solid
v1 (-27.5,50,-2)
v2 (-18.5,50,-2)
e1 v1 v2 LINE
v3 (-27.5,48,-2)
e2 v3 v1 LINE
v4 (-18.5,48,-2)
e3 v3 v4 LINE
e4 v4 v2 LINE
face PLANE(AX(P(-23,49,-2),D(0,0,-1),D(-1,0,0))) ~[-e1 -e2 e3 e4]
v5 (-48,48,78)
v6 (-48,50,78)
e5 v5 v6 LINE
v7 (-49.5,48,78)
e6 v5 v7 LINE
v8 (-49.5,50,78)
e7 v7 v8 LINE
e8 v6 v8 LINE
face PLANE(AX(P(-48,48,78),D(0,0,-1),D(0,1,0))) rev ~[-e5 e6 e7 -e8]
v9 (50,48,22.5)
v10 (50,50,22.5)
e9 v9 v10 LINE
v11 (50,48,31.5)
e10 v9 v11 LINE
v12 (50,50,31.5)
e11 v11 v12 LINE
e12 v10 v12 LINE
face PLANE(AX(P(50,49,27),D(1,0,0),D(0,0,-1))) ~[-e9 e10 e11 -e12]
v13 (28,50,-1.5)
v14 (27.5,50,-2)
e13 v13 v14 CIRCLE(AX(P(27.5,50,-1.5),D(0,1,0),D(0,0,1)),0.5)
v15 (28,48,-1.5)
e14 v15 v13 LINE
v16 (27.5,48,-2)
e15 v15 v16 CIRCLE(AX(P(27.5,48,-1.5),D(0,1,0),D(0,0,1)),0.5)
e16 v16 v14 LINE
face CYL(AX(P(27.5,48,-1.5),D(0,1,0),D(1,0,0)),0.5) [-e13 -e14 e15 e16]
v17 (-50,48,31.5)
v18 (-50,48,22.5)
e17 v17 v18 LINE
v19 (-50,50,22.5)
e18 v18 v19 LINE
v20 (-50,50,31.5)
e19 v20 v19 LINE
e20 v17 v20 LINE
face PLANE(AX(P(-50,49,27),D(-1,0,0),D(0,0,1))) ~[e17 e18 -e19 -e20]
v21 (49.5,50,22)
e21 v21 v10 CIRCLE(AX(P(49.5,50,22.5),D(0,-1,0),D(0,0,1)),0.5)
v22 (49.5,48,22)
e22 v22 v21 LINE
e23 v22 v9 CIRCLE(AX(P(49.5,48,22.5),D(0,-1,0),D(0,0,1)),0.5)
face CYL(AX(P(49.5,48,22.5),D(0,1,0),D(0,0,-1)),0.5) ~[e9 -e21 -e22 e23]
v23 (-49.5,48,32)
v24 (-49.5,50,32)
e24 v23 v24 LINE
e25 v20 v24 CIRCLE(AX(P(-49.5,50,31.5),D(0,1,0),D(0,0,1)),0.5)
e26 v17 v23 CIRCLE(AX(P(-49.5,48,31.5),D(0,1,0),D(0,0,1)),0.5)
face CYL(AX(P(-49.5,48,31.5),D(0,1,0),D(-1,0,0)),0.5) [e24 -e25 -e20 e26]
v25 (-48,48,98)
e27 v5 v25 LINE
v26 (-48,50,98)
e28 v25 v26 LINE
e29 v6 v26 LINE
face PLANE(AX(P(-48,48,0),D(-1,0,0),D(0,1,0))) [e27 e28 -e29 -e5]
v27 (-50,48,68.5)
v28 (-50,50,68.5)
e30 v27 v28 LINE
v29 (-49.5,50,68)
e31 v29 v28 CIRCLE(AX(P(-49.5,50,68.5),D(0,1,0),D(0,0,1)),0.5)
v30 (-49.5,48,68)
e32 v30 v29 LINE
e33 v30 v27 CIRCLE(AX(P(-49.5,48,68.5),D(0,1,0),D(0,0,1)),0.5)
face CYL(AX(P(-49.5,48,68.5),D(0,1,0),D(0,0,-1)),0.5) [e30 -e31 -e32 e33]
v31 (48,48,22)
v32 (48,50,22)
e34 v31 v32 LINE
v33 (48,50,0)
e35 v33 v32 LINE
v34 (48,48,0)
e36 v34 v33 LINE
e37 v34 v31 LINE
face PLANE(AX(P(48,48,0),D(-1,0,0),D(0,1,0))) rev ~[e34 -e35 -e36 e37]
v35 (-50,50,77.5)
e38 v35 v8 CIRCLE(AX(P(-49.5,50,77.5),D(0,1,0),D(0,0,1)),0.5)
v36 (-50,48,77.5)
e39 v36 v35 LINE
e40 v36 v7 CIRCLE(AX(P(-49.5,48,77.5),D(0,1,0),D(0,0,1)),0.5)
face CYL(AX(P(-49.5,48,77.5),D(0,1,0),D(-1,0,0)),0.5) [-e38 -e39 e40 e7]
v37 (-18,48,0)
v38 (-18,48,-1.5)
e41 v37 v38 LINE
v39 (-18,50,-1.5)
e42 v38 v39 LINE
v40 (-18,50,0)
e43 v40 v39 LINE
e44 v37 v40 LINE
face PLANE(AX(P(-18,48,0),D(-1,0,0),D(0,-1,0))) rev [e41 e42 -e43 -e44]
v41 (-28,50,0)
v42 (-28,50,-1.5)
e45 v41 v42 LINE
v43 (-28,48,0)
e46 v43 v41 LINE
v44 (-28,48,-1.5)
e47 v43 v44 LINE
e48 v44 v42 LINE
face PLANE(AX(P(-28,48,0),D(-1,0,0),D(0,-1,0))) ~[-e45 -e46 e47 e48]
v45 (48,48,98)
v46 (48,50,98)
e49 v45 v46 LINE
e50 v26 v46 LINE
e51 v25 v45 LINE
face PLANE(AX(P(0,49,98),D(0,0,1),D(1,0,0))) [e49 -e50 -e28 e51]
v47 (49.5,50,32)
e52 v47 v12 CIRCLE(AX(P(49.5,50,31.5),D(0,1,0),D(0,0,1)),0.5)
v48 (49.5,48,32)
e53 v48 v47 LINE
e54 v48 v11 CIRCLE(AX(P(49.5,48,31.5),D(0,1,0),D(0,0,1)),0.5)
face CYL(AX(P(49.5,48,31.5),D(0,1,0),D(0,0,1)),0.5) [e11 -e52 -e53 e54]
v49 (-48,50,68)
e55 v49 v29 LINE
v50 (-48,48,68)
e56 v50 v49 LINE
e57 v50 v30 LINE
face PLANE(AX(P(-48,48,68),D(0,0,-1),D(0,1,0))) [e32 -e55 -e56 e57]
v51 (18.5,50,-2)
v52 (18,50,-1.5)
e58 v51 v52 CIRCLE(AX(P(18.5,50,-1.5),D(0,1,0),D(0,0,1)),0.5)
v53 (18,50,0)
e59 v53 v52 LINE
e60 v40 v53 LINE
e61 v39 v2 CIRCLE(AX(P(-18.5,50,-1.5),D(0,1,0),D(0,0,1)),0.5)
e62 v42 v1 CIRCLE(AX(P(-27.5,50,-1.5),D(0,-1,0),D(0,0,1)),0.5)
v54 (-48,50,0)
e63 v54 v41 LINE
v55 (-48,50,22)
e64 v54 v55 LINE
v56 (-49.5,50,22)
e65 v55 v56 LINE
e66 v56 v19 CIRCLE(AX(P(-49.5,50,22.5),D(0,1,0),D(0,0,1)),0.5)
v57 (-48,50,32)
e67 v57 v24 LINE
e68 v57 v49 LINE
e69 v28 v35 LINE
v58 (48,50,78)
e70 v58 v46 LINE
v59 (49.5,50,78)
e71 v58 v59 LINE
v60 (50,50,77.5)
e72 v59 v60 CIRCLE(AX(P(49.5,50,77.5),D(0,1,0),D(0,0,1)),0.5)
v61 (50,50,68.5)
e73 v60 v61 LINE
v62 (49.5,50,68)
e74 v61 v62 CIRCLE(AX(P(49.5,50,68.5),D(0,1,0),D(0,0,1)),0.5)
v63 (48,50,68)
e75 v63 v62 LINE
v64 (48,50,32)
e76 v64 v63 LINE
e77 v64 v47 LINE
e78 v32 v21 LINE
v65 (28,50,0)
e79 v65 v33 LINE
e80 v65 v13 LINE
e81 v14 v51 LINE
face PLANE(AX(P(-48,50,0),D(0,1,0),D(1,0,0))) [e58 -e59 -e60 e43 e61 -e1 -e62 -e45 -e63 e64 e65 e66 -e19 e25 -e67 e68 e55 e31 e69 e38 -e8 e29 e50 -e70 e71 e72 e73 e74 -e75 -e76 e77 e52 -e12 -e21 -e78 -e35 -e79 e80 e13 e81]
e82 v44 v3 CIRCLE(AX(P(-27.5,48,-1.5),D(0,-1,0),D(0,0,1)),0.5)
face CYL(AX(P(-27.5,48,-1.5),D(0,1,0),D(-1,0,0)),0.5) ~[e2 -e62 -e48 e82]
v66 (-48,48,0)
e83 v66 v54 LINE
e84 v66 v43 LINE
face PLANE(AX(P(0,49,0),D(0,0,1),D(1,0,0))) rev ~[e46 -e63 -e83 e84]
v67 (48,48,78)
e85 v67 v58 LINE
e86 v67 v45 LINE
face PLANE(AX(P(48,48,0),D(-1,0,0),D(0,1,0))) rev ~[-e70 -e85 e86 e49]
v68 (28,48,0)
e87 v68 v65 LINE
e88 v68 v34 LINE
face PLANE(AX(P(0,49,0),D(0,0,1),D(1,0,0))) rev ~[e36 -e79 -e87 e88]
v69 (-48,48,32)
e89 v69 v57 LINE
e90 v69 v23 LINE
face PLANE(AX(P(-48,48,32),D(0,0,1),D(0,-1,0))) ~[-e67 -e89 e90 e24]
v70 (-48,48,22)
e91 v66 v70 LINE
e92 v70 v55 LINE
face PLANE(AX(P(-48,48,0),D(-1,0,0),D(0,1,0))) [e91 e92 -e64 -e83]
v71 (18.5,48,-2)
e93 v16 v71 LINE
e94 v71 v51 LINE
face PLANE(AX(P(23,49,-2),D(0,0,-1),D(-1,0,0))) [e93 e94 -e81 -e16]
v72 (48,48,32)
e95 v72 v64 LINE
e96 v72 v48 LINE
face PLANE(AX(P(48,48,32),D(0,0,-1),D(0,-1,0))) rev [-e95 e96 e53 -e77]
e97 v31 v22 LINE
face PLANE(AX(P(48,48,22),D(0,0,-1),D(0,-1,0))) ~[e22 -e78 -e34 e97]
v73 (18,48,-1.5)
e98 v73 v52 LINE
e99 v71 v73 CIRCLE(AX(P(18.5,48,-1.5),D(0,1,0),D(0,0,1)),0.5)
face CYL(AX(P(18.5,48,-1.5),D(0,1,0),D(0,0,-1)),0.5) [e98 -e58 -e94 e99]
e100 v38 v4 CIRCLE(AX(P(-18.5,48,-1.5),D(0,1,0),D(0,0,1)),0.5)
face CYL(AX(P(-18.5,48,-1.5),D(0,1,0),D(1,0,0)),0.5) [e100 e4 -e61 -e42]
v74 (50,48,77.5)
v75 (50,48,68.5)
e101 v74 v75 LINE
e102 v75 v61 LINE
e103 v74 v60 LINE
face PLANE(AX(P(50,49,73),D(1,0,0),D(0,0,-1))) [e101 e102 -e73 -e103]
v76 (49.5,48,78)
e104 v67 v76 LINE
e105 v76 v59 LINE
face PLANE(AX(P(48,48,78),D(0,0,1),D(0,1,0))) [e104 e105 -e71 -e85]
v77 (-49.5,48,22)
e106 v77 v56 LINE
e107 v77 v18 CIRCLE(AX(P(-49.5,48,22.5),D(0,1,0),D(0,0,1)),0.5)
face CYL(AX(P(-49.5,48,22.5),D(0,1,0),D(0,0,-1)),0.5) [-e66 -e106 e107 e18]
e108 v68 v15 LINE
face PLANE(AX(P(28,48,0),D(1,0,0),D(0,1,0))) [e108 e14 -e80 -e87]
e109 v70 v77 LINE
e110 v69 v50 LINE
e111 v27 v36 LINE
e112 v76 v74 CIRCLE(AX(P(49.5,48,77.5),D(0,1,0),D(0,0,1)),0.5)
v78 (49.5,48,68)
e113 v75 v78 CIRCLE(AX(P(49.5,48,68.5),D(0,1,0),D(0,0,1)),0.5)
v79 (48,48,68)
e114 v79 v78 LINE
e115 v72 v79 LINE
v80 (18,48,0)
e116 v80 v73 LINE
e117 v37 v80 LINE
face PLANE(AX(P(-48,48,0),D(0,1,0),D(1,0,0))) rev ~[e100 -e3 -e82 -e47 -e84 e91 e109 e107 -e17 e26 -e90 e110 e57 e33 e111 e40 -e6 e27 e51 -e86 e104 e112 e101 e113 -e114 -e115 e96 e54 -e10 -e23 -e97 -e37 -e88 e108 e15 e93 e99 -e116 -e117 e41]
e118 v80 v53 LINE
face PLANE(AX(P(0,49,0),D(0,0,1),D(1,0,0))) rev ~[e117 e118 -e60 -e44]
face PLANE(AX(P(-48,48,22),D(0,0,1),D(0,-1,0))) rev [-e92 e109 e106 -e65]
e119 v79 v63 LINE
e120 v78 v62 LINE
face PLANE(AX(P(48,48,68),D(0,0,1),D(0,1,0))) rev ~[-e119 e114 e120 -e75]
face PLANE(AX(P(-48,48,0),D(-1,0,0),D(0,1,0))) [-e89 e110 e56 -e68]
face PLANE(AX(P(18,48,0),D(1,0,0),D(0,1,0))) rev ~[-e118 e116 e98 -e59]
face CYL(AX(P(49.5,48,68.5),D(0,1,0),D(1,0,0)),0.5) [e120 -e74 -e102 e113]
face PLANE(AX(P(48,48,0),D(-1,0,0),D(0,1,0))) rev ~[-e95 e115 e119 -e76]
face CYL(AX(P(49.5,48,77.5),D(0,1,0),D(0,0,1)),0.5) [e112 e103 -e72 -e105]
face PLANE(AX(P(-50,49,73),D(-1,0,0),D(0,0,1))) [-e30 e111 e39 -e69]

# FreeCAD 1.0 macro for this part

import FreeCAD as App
import Part
import Sketcher
Q = App.Units.Quantity


def edges_at(feature, points):
    """Names of the edges that pass closest to the given points."""
    edges = feature.Shape.Edges
    near = lambda p: min(range(len(edges)), key=lambda i: edges[i].distToShape(Part.Vertex(*p))[0])
    return sorted({f"Edge{near(p) + 1}" for p in points})


def add_polygon(sketch, points):
    """Adds a closed chain of lines whose ends are joined by coincident constraints."""
    first, n = sketch.GeometryCount, len(points)
    for a, b in zip(points, points[1:] + points[:1]):
        sketch.addGeometry(Part.LineSegment(App.Vector(*a, 0), App.Vector(*b, 0)), False)
    for i in range(n):
        sketch.addConstraint(Sketcher.Constraint("Coincident", first + i, 2, first + (i + 1) % n, 1))

doc = App.newDocument("Part")
body = doc.addObject("PartDesign::Body", "Body")

sketch1 = body.newObject("Sketcher::SketchObject", "Sketch")
sketch1.AttachmentSupport = (doc.getObject("XY_Plane"), [""])
sketch1.MapMode = "FlatFace"
add_polygon(sketch1, [(-48, 50), (-48, 48), (48, 48), (48, 50)])
sketch1.addConstraint([
    Sketcher.Constraint("Vertical", 0),
    Sketcher.Constraint("Horizontal", 1),
    Sketcher.Constraint("Vertical", 2),
    Sketcher.Constraint("Horizontal", 3),
    Sketcher.Constraint("DistanceX", 1, 1, 1, 2, Q("96 mm")),
    Sketcher.Constraint("DistanceY", 0, 2, 0, 1, Q("2 mm")),
    Sketcher.Constraint("DistanceX", 0, 2, -1, 1, Q("48 mm")),
    Sketcher.Constraint("DistanceY", -1, 1, 0, 2, Q("48 mm")),
])
pad1 = body.newObject("PartDesign::Pad", "Pad")
pad1.Profile = sketch1
pad1.Length = 98

sketch2 = body.newObject("Sketcher::SketchObject", "Sketch001")
sketch2.AttachmentSupport = (doc.getObject("XY_Plane"), [""])
sketch2.MapMode = "FlatFace"
add_polygon(sketch2, [(28, 50), (28, 48), (18, 48), (18, 50)])
sketch2.addConstraint([
    Sketcher.Constraint("Vertical", 0),
    Sketcher.Constraint("Horizontal", 1),
    Sketcher.Constraint("Vertical", 2),
    Sketcher.Constraint("Horizontal", 3),
    Sketcher.Constraint("DistanceX", 1, 2, 1, 1, Q("10 mm")),
    Sketcher.Constraint("DistanceY", 0, 2, 0, 1, Q("2 mm")),
    Sketcher.Constraint("DistanceX", -1, 1, 0, 2, Q("28 mm")),
    Sketcher.Constraint("DistanceY", -1, 1, 0, 2, Q("48 mm")),
])
pad2 = body.newObject("PartDesign::Pad", "Pad001")
pad2.Profile = sketch2
pad2.Length = 2
pad2.Reversed = True
doc.recompute()

mirrored = body.newObject("PartDesign::Mirrored", "Mirrored")
mirrored.Originals = [pad2]
mirrored.MirrorPlane = (doc.getObject("YZ_Plane"), [""])
body.Tip = mirrored

sketch3 = body.newObject("Sketcher::SketchObject", "Sketch002")
sketch3.AttachmentSupport = (doc.getObject("YZ_Plane"), [""])
sketch3.MapMode = "FlatFace"
sketch3.AttachmentOffset = App.Placement(App.Vector(0, 0, -48), App.Rotation())
add_polygon(sketch3, [(50, 68), (48, 68), (48, 78), (50, 78)])
sketch3.addConstraint([
    Sketcher.Constraint("Horizontal", 0),
    Sketcher.Constraint("Vertical", 1),
    Sketcher.Constraint("Horizontal", 2),
    Sketcher.Constraint("Vertical", 3),
    Sketcher.Constraint("DistanceX", 0, 2, 0, 1, Q("2 mm")),
    Sketcher.Constraint("DistanceY", 1, 1, 1, 2, Q("10 mm")),
    Sketcher.Constraint("DistanceX", -1, 1, 0, 2, Q("48 mm")),
    Sketcher.Constraint("DistanceY", -1, 1, 0, 2, Q("68 mm")),
])
pad3 = body.newObject("PartDesign::Pad", "Pad002")
pad3.Profile = sketch3
pad3.Length = 2
pad3.Reversed = True
doc.recompute()

datumplane = body.newObject("PartDesign::Plane", "DatumPlane")
datumplane.AttachmentSupport = (doc.getObject("XY_Plane"), [""])
datumplane.MapMode = "FlatFace"
datumplane.AttachmentOffset = App.Placement(App.Vector(0, 0, 50), App.Rotation())
mirrored2 = body.newObject("PartDesign::Mirrored", "Mirrored001")
mirrored2.Originals = [pad3]
mirrored2.MirrorPlane = (datumplane, [""])
body.Tip = mirrored2

sketch4 = body.newObject("Sketcher::SketchObject", "Sketch003")
sketch4.AttachmentSupport = (doc.getObject("YZ_Plane"), [""])
sketch4.MapMode = "FlatFace"
sketch4.AttachmentOffset = App.Placement(App.Vector(0, 0, 48), App.Rotation())
add_polygon(sketch4, [(50, 78), (48, 78), (48, 68), (50, 68)])
sketch4.addConstraint([
    Sketcher.Constraint("Horizontal", 0),
    Sketcher.Constraint("Vertical", 1),
    Sketcher.Constraint("Horizontal", 2),
    Sketcher.Constraint("Vertical", 3),
    Sketcher.Constraint("DistanceX", 0, 2, 0, 1, Q("2 mm")),
    Sketcher.Constraint("DistanceY", 1, 2, 1, 1, Q("10 mm")),
    Sketcher.Constraint("DistanceX", -1, 1, 0, 2, Q("48 mm")),
    Sketcher.Constraint("DistanceY", -1, 1, 0, 2, Q("78 mm")),
])
pad4 = body.newObject("PartDesign::Pad", "Pad003")
pad4.Profile = sketch4
pad4.Length = 2
doc.recompute()

datumplane2 = body.newObject("PartDesign::Plane", "DatumPlane001")
datumplane2.AttachmentSupport = (doc.getObject("XY_Plane"), [""])
datumplane2.MapMode = "FlatFace"
datumplane2.AttachmentOffset = App.Placement(App.Vector(0, 0, 50), App.Rotation())
mirrored3 = body.newObject("PartDesign::Mirrored", "Mirrored002")
mirrored3.Originals = [pad4]
mirrored3.MirrorPlane = (datumplane2, [""])
body.Tip = mirrored3
doc.recompute()

fillet = body.newObject("PartDesign::Fillet", "Fillet")
fillet.Base = (mirrored3, edges_at(mirrored3, [
    (18, 49, -2),
    (28, 49, -2),
    (-28, 49, -2),
    (-18, 49, -2),
    (-50, 49, 68),
    (-50, 49, 78),
    (-50, 49, 22),
    (-50, 49, 32),
    (50, 49, 78),
    (50, 49, 68),
    (50, 49, 32),
    (50, 49, 22),
]))
fillet.Radius = 0.5

doc.recompute()
